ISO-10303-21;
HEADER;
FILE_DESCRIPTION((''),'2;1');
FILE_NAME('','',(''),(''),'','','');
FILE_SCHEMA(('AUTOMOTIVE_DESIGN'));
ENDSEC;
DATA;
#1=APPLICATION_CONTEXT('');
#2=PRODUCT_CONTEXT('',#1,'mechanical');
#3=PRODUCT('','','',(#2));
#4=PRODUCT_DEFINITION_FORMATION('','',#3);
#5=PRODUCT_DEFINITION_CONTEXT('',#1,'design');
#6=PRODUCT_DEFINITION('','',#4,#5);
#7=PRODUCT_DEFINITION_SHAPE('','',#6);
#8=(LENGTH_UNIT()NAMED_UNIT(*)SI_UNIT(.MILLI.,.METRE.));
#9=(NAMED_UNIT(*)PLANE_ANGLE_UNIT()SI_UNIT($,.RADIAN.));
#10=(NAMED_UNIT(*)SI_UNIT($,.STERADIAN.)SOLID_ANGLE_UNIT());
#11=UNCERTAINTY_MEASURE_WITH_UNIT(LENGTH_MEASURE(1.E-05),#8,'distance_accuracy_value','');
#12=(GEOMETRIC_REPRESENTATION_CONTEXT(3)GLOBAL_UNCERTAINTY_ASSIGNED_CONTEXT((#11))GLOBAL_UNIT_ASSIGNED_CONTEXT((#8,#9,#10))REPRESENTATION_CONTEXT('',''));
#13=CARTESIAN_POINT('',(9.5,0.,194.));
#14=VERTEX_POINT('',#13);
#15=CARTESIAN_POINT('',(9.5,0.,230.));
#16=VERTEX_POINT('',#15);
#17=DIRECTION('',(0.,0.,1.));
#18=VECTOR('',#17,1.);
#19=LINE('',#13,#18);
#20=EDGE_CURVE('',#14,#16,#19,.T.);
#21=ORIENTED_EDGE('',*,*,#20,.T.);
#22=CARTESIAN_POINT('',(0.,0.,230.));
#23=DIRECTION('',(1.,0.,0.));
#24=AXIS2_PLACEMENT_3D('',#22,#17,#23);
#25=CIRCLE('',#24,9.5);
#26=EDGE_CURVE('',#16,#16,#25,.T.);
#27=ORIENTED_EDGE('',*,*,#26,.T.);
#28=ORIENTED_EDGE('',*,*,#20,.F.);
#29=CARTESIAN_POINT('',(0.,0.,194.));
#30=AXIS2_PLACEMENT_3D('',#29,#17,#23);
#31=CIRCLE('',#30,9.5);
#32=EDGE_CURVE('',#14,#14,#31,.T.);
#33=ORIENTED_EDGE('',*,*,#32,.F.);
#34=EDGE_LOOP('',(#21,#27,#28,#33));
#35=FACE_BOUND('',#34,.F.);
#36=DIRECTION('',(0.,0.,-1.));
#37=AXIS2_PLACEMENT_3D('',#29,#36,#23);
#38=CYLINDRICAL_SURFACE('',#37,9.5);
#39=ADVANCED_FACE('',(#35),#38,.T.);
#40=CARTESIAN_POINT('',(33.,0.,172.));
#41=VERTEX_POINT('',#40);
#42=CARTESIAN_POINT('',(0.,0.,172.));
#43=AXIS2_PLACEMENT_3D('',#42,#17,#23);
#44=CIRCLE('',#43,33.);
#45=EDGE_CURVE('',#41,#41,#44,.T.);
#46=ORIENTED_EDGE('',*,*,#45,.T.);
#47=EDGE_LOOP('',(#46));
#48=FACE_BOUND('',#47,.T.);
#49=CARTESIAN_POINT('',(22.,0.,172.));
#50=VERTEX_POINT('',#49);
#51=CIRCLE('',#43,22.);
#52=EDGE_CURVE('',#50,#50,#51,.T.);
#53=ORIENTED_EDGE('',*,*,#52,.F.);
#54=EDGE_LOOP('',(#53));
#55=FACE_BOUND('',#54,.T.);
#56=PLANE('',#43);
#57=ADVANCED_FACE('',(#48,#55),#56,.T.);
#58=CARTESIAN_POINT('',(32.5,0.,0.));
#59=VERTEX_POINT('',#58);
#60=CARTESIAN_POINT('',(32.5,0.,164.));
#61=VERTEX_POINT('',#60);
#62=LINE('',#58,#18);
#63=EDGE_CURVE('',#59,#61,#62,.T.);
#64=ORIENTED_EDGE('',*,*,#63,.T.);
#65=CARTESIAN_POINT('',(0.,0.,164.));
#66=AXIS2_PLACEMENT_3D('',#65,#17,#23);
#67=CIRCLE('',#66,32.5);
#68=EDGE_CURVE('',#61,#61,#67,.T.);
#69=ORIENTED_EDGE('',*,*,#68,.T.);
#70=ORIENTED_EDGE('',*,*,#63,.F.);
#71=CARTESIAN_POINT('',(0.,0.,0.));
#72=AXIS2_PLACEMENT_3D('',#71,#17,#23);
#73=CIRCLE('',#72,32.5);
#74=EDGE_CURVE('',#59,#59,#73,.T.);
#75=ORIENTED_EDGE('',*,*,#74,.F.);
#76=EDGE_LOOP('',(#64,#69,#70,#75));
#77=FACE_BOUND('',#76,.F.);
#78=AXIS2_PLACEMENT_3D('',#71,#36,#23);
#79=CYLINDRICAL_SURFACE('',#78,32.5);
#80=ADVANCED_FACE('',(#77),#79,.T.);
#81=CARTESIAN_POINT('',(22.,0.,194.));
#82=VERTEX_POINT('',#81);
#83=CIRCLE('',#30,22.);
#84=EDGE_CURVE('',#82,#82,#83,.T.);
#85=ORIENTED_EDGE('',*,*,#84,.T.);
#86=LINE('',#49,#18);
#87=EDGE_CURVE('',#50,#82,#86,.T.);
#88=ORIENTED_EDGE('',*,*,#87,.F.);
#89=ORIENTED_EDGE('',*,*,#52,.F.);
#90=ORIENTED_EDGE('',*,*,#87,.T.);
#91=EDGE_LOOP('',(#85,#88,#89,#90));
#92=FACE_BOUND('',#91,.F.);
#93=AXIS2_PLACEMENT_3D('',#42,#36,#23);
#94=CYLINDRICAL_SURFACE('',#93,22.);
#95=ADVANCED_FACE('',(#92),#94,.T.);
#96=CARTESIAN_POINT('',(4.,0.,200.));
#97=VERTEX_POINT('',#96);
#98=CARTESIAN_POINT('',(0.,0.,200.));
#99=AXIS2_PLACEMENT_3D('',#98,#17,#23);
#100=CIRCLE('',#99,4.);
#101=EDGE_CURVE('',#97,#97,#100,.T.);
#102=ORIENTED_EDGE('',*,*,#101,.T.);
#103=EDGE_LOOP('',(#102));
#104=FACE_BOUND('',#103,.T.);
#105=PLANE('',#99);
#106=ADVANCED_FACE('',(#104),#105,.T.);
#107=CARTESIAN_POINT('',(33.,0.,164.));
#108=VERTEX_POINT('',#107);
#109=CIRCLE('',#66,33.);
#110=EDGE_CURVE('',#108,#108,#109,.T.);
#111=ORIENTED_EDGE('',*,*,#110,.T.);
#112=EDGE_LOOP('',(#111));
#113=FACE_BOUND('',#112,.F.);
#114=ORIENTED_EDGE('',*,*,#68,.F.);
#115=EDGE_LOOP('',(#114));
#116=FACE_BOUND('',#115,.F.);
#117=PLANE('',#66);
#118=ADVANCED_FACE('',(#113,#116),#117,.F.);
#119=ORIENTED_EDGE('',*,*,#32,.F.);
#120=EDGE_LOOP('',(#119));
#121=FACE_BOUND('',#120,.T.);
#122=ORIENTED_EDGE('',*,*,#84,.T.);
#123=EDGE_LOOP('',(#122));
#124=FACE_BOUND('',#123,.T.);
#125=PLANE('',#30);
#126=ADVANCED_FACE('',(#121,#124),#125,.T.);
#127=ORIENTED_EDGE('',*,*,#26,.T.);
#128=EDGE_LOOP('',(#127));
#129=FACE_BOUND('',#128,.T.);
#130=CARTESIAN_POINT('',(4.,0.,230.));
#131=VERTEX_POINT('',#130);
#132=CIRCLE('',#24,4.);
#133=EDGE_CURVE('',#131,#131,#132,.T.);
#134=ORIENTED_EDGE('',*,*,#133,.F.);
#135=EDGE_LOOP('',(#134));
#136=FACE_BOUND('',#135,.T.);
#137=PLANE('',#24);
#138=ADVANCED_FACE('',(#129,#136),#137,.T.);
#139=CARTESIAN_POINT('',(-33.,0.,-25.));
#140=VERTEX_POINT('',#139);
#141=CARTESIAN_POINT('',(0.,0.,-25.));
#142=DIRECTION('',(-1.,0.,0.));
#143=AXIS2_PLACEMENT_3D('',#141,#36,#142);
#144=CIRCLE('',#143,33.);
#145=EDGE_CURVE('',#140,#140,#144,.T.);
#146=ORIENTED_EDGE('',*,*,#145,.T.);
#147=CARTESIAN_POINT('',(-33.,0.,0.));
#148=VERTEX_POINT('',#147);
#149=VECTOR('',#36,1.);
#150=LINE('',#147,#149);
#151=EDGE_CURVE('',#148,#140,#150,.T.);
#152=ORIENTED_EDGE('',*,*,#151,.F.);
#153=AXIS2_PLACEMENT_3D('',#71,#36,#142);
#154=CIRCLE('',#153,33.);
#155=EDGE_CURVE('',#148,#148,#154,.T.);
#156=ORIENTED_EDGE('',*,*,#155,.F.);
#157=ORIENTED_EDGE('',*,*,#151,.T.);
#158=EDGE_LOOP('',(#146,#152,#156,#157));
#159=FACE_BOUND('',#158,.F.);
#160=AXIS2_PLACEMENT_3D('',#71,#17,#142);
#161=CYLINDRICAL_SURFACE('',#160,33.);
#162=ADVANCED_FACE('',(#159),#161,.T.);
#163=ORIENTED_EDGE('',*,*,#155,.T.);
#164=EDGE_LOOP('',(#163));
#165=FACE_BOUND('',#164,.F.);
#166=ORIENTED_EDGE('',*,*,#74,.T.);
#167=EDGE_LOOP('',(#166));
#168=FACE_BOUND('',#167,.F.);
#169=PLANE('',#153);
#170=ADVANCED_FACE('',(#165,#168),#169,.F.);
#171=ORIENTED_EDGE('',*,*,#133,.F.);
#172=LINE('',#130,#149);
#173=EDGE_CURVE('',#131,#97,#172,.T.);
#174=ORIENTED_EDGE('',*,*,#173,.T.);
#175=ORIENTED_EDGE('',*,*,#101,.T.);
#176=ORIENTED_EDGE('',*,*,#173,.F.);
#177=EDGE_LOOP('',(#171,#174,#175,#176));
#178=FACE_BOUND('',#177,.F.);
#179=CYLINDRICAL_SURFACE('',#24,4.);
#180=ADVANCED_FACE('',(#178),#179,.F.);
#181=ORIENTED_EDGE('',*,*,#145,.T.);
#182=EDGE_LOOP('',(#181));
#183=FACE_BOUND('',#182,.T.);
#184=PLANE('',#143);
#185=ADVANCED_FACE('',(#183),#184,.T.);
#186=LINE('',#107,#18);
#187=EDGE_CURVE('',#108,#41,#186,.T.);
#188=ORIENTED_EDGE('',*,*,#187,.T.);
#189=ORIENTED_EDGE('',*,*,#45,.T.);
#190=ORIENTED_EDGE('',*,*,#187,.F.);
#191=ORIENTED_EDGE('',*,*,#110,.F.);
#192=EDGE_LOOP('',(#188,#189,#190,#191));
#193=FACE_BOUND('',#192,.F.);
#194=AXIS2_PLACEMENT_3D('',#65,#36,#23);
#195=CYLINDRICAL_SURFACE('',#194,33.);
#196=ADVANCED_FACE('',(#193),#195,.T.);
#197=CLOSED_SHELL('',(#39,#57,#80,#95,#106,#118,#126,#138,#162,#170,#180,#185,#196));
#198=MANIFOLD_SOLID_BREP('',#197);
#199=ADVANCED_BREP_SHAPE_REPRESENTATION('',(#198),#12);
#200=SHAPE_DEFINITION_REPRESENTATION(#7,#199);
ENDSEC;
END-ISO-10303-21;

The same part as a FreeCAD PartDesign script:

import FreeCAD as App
import Part
import Sketcher

doc = App.newDocument("Part")
params = doc.addObject("Spreadsheet::Sheet", "Params")
for row, (alias, value) in enumerate([
    ("sketch1_diameter", "65 mm"),
    ("pad1_length", "164 mm"),
    ("sketch2_diameter", "66 mm"),
    ("pad2_length", "25 mm"),
    ("sketch3_diameter", "66 mm"),
    ("pad3_length", "8 mm"),
    ("sketch4_diameter", "44 mm"),
    ("pad4_length", "22 mm"),
    ("sketch5_diameter", "19 mm"),
    ("pad5_length", "36 mm"),
    ("sketch6_diameter", "8 mm"),
    ("pocket1_length", "30 mm"),
], start=1):
    params.set(f"A{row}", alias)
    params.set(f"B{row}", "=" + value)
    params.setAlias(f"B{row}", alias)

body = doc.addObject("PartDesign::Body", "Body")

sketch1 = body.newObject("Sketcher::SketchObject", "Sketch")
sketch1.AttachmentSupport = (doc.getObject("XY_Plane"), [""])
sketch1.MapMode = "FlatFace"
sketch1.addGeometry(Part.Circle(App.Vector(0, 0, 0), App.Vector(0, 0, 1), 32), False)
sketch1.addConstraint([
    Sketcher.Constraint("Coincident", 0, 3, -1, 1),
    Sketcher.Constraint("Diameter", 0, 65.0),
])
sketch1.setExpression("Constraints[1]", "Params.sketch1_diameter")
pad1 = body.newObject("PartDesign::Pad", "Pad")
pad1.Profile = sketch1
pad1.setExpression("Length", "Params.pad1_length")

sketch2 = body.newObject("Sketcher::SketchObject", "Sketch001")
sketch2.AttachmentSupport = (doc.getObject("XY_Plane"), [""])
sketch2.MapMode = "FlatFace"
sketch2.addGeometry(Part.Circle(App.Vector(0, 0, 0), App.Vector(0, 0, 1), 33), False)
sketch2.addConstraint([
    Sketcher.Constraint("Coincident", 0, 3, -1, 1),
    Sketcher.Constraint("Diameter", 0, 66.0),
])
sketch2.setExpression("Constraints[1]", "Params.sketch2_diameter")
pad2 = body.newObject("PartDesign::Pad", "Pad001")
pad2.Profile = sketch2
pad2.setExpression("Length", "Params.pad2_length")
pad2.Reversed = True

sketch3 = body.newObject("Sketcher::SketchObject", "Sketch002")
sketch3.AttachmentSupport = (doc.getObject("XY_Plane"), [""])
sketch3.MapMode = "FlatFace"
sketch3.AttachmentOffset = App.Placement(App.Vector(0, 0, 164), App.Rotation())
sketch3.addGeometry(Part.Circle(App.Vector(0, 0, 0), App.Vector(0, 0, 1), 33), False)
sketch3.addConstraint([
    Sketcher.Constraint("Coincident", 0, 3, -1, 1),
    Sketcher.Constraint("Diameter", 0, 66.0),
])
sketch3.setExpression("Constraints[1]", "Params.sketch3_diameter")
pad3 = body.newObject("PartDesign::Pad", "Pad002")
pad3.Profile = sketch3
pad3.setExpression("Length", "Params.pad3_length")

sketch4 = body.newObject("Sketcher::SketchObject", "Sketch003")
sketch4.AttachmentSupport = (doc.getObject("XY_Plane"), [""])
sketch4.MapMode = "FlatFace"
sketch4.AttachmentOffset = App.Placement(App.Vector(0, 0, 172), App.Rotation())
sketch4.addGeometry(Part.Circle(App.Vector(0, 0, 0), App.Vector(0, 0, 1), 22), False)
sketch4.addConstraint([
    Sketcher.Constraint("Coincident", 0, 3, -1, 1),
    Sketcher.Constraint("Diameter", 0, 44.0),
])
sketch4.setExpression("Constraints[1]", "Params.sketch4_diameter")
pad4 = body.newObject("PartDesign::Pad", "Pad003")
pad4.Profile = sketch4
pad4.setExpression("Length", "Params.pad4_length")

sketch5 = body.newObject("Sketcher::SketchObject", "Sketch004")
sketch5.AttachmentSupport = (doc.getObject("XY_Plane"), [""])
sketch5.MapMode = "FlatFace"
sketch5.AttachmentOffset = App.Placement(App.Vector(0, 0, 194), App.Rotation())
sketch5.addGeometry(Part.Circle(App.Vector(0, 0, 0), App.Vector(0, 0, 1), 10), False)
sketch5.addConstraint([
    Sketcher.Constraint("Coincident", 0, 3, -1, 1),
    Sketcher.Constraint("Diameter", 0, 19.0),
])
sketch5.setExpression("Constraints[1]", "Params.sketch5_diameter")
pad5 = body.newObject("PartDesign::Pad", "Pad004")
pad5.Profile = sketch5
pad5.setExpression("Length", "Params.pad5_length")

sketch6 = body.newObject("Sketcher::SketchObject", "Sketch005")
sketch6.AttachmentSupport = (doc.getObject("XY_Plane"), [""])
sketch6.MapMode = "FlatFace"
sketch6.AttachmentOffset = App.Placement(App.Vector(0, 0, 230), App.Rotation())
sketch6.addGeometry(Part.Circle(App.Vector(0, 0, 0), App.Vector(0, 0, 1), 4), False)
sketch6.addConstraint([
    Sketcher.Constraint("Coincident", 0, 3, -1, 1),
    Sketcher.Constraint("Diameter", 0, 8.0),
])
sketch6.setExpression("Constraints[1]", "Params.sketch6_diameter")
pocket1 = body.newObject("PartDesign::Pocket", "Pocket")
pocket1.Profile = sketch6
pocket1.setExpression("Length", "Params.pocket1_length")

doc.recompute()
